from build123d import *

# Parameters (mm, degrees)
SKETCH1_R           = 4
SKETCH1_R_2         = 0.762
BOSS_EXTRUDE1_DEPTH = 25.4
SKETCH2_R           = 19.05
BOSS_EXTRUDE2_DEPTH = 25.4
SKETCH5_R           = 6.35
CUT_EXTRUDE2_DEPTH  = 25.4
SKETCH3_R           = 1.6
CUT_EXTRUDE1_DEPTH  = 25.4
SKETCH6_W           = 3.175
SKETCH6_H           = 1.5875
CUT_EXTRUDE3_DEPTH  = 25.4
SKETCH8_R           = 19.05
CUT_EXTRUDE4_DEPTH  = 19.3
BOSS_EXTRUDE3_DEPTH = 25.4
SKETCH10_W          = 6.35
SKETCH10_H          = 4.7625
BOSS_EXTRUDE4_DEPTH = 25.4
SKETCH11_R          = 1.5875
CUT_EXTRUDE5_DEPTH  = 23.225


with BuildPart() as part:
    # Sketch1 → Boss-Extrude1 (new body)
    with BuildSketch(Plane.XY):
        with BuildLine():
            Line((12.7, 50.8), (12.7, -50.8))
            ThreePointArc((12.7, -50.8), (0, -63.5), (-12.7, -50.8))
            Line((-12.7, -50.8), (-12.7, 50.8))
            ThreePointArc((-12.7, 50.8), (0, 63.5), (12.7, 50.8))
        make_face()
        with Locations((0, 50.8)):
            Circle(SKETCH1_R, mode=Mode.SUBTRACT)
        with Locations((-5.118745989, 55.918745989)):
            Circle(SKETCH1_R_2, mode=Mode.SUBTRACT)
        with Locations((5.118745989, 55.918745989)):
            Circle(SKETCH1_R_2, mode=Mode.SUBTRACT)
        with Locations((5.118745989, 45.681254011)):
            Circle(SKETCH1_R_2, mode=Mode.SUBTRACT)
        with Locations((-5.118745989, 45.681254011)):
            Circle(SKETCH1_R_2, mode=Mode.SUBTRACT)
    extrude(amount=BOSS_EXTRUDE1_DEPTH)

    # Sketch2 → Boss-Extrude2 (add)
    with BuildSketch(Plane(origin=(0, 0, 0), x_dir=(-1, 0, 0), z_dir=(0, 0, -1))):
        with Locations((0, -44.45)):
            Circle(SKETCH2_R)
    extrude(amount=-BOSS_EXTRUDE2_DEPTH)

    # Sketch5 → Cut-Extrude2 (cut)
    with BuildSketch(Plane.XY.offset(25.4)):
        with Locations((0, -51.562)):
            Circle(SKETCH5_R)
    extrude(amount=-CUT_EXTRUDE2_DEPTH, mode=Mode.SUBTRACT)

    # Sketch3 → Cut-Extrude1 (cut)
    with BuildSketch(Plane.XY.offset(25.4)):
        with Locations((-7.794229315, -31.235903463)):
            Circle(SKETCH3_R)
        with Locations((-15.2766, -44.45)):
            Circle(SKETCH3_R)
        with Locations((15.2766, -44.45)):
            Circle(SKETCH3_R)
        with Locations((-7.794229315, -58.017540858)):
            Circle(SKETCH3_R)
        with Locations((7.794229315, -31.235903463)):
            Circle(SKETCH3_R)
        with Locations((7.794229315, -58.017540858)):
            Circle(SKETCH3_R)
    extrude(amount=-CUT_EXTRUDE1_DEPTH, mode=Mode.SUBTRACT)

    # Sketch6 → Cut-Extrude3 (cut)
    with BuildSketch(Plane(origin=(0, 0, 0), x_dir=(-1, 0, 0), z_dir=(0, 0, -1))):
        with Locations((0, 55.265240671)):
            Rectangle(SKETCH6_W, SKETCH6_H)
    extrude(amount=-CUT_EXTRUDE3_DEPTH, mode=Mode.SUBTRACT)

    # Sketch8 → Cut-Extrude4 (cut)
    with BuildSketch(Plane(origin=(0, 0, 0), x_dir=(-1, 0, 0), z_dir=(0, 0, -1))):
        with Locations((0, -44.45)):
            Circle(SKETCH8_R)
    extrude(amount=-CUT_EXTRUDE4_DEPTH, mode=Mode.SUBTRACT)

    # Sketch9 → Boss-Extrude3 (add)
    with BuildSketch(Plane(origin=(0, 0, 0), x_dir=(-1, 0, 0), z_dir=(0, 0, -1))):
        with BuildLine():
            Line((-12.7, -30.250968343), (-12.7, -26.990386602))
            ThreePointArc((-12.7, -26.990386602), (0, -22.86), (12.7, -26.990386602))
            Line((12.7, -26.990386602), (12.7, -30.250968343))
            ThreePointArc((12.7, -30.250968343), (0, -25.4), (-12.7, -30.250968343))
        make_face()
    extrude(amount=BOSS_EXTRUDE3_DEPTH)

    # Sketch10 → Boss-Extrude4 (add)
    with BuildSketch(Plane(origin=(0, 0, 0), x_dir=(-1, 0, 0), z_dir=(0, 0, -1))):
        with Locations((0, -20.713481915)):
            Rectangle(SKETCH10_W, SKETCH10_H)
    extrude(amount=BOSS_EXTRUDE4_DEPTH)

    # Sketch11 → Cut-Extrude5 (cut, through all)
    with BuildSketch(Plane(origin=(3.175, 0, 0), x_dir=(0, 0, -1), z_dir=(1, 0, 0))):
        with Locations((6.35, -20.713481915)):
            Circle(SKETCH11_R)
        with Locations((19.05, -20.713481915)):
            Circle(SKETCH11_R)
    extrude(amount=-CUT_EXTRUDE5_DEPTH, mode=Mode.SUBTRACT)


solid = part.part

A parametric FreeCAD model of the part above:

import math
import FreeCAD as App
import Part
import Sketcher

V = App.Vector
Q = App.Units.Quantity


def add_polygon(sketch, points):
    """Adds a closed chain of lines whose ends are joined by coincident constraints."""
    first, n = sketch.GeometryCount, len(points)
    for a, b in zip(points, points[1:] + points[:1]):
        sketch.addGeometry(Part.LineSegment(App.Vector(*a, 0), App.Vector(*b, 0)), False)
    for i in range(n):
        sketch.addConstraint(Sketcher.Constraint("Coincident", first + i, 2, first + (i + 1) % n, 1))

doc = App.newDocument("Part")
body = doc.addObject("PartDesign::Body", "Body")

# Sketch on XY plane
sketch1 = doc.addObject("Sketcher::SketchObject", "Sketch")
body.addObject(sketch1)
sketch1.AttachmentSupport = (doc.XY_Plane, [""])
sketch1.MapMode = "FlatFace"
sketch1.addGeometry([
    Part.LineSegment(V(12.7, -50.8, 0), V(12.7, 50.8, 0)),  # 0
    Part.ArcOfCircle(Part.Circle(V(0, 50.8, 0), V(0, 0, 1), 12.7), math.radians(0), math.radians(180)),  # 1
    Part.LineSegment(V(-12.7, 50.8, 0), V(-12.7, -50.8, 0)),  # 2
    Part.ArcOfCircle(Part.Circle(V(0, -50.8, 0), V(0, 0, 1), 12.7), math.radians(180), math.radians(360)),  # 3
    Part.Circle(V(5.1, 45.7, 0), V(0, 0, 1), 0.8),  # 4
    Part.Circle(V(-5.1, 45.7, 0), V(0, 0, 1), 0.8),  # 5
    Part.Circle(V(0, 50.8, 0), V(0, 0, 1), 4),  # 6
    Part.Circle(V(5.1, 55.9, 0), V(0, 0, 1), 0.8),  # 7
    Part.Circle(V(-5.1, 55.9, 0), V(0, 0, 1), 0.8),  # 8
], False)
sketch1.addConstraint([
    Sketcher.Constraint("Tangent", 0, 2, 1, 1),
    Sketcher.Constraint("Tangent", 1, 2, 2, 1),
    Sketcher.Constraint("Tangent", 2, 2, 3, 1),
    Sketcher.Constraint("Tangent", 3, 2, 0, 1),
    Sketcher.Constraint("Vertical", 0),
    Sketcher.Constraint("Vertical", 2),
    Sketcher.Constraint("Coincident", 6, 3, 1, 3),
    Sketcher.Constraint("Equal", 4, 5),
    Sketcher.Constraint("Equal", 5, 7),
    Sketcher.Constraint("Equal", 7, 8),
    Sketcher.Constraint("Symmetric", 1, 3, 3, 3, -1, 1),
    Sketcher.Constraint("Symmetric", 4, 3, 5, 3, -2),
    Sketcher.Constraint("Symmetric", 7, 3, 8, 3, -2),
    Sketcher.Constraint("Vertical", 4, 3, 7, 3),
    Sketcher.Constraint("Radius", 1, Q("0.5 in")),
    Sketcher.Constraint("Diameter", 4, Q("0.06 in")),
    Sketcher.Constraint("DistanceY", 0, 1, 0, 2, Q("4 in")),
    Sketcher.Constraint("Diameter", 6, 8.0),
    Sketcher.Constraint("DistanceX", 5, 3, 4, 3, 10.237492),
    Sketcher.Constraint("DistanceY", 4, 3, 7, 3, 10.237492),
    Sketcher.Constraint("DistanceY", -1, 1, 4, 3, 45.681254),
])
pad1 = doc.addObject("PartDesign::Pad", "Pad")
body.addObject(pad1)
pad1.Profile = sketch1
pad1.Length = Q("1 in")

# Sketch on XY plane
sketch2 = doc.addObject("Sketcher::SketchObject", "Sketch001")
body.addObject(sketch2)
sketch2.AttachmentSupport = (doc.XY_Plane, [""])
sketch2.MapMode = "FlatFace"
sketch2.addGeometry(Part.Circle(V(0, -44, 0), V(0, 0, 1), 19), False)
sketch2.addConstraint([
    Sketcher.Constraint("PointOnObject", 0, 3, -2),
    Sketcher.Constraint("Diameter", 0, Q("1.5 in")),
    Sketcher.Constraint("DistanceY", 0, 3, -1, 1, Q("1.75 in")),
])
pad2 = doc.addObject("PartDesign::Pad", "Pad001")
body.addObject(pad2)
pad2.Profile = sketch2
pad2.Length = Q("1 in")

# Sketch on XY plane
sketch3 = doc.addObject("Sketcher::SketchObject", "Sketch002")
body.addObject(sketch3)
sketch3.AttachmentSupport = (doc.XY_Plane, [""])
sketch3.MapMode = "FlatFace"
sketch3.AttachmentOffset = App.Placement(V(0, 0, 1 * 25.4), App.Rotation())
sketch3.addGeometry(Part.Circle(V(0, -52, 0), V(0, 0, 1), 6), False)
sketch3.addConstraint([
    Sketcher.Constraint("PointOnObject", 0, 3, -2),
    Sketcher.Constraint("Diameter", 0, Q("0.5 in")),
    Sketcher.Constraint("DistanceY", 0, 3, -1, 1, Q("2.03 in")),
])
pocket1 = doc.addObject("PartDesign::Pocket", "Pocket")
body.addObject(pocket1)
pocket1.Profile = sketch3
pocket1.Length = Q("1 in")

# Sketch on XY plane
sketch4 = doc.addObject("Sketcher::SketchObject", "Sketch003")
body.addObject(sketch4)
sketch4.AttachmentSupport = (doc.XY_Plane, [""])
sketch4.MapMode = "FlatFace"
sketch4.AttachmentOffset = App.Placement(V(0, 0, 1 * 25.4), App.Rotation())
sketch4.addGeometry([
    Part.Circle(V(-7.8, -31.2, 0), V(0, 0, 1), 1.6),  # 0
    Part.Circle(V(-15.3, -44.5, 0), V(0, 0, 1), 1.6),  # 1
    Part.Circle(V(15.3, -44.5, 0), V(0, 0, 1), 1.6),  # 2
    Part.Circle(V(-7.8, -58, 0), V(0, 0, 1), 1.6),  # 3
    Part.Circle(V(7.8, -31.2, 0), V(0, 0, 1), 1.6),  # 4
    Part.Circle(V(7.8, -58, 0), V(0, 0, 1), 1.6),  # 5
], False)
sketch4.addConstraint([
    Sketcher.Constraint("Equal", 0, 1),
    Sketcher.Constraint("Equal", 1, 2),
    Sketcher.Constraint("Equal", 2, 3),
    Sketcher.Constraint("Equal", 3, 4),
    Sketcher.Constraint("Equal", 4, 5),
    Sketcher.Constraint("Symmetric", 1, 3, 2, 3, -2),
    Sketcher.Constraint("Symmetric", 0, 3, 4, 3, -2),
    Sketcher.Constraint("Symmetric", 3, 3, 5, 3, -2),
    Sketcher.Constraint("Vertical", 0, 3, 3, 3),
    Sketcher.Constraint("Diameter", 0, 3.2),
    Sketcher.Constraint("DistanceY", 1, 3, -1, 1, Q("1.75 in")),
    Sketcher.Constraint("DistanceX", 1, 3, -1, 1, 15.2766),
    Sketcher.Constraint("DistanceX", 0, 3, -1, 1, 7.794229),
    Sketcher.Constraint("DistanceY", 3, 3, -1, 1, 58.017541),
    Sketcher.Constraint("DistanceY", 0, 3, -1, 1, 31.235903),
])
pocket2 = doc.addObject("PartDesign::Pocket", "Pocket001")
body.addObject(pocket2)
pocket2.Profile = sketch4
pocket2.Length = Q("1 in")

# Sketch on XY plane
sketch5 = doc.addObject("Sketcher::SketchObject", "Sketch004")
body.addObject(sketch5)
sketch5.AttachmentSupport = (doc.XY_Plane, [""])
sketch5.MapMode = "FlatFace"
add_polygon(sketch5, [(1.6, 56.1), (1.6, 54.5), (-1.6, 54.5), (-1.6, 56.1)])  # lines 0-3
sketch5.addConstraint([
    Sketcher.Constraint("Vertical", 0),
    Sketcher.Constraint("Horizontal", 1),
    Sketcher.Constraint("Vertical", 2),
    Sketcher.Constraint("Horizontal", 3),
    Sketcher.Constraint("DistanceX", 1, 2, 1, 1, Q("0.125 in")),
    Sketcher.Constraint("DistanceY", 0, 2, 0, 1, Q("0.0625 in")),
    Sketcher.Constraint("DistanceX", -1, 1, 0, 2, Q("0.0625 in")),
    Sketcher.Constraint("DistanceY", -1, 1, 0, 2, 54.471491),
])
pocket3 = doc.addObject("PartDesign::Pocket", "Pocket002")
body.addObject(pocket3)
pocket3.Profile = sketch5
pocket3.Length = Q("1 in")
pocket3.Reversed = True

# Sketch on XY plane
sketch6 = doc.addObject("Sketcher::SketchObject", "Sketch005")
body.addObject(sketch6)
sketch6.AttachmentSupport = (doc.XY_Plane, [""])
sketch6.MapMode = "FlatFace"
sketch6.addGeometry(Part.Circle(V(0, -44, 0), V(0, 0, 1), 19), False)
sketch6.addConstraint([
    Sketcher.Constraint("PointOnObject", 0, 3, -2),
    Sketcher.Constraint("Diameter", 0, Q("1.5 in")),
    Sketcher.Constraint("DistanceY", 0, 3, -1, 1, Q("1.75 in")),
])
pocket4 = doc.addObject("PartDesign::Pocket", "Pocket003")
body.addObject(pocket4)
pocket4.Profile = sketch6
pocket4.Length = 19.3
pocket4.Reversed = True

# Sketch on XY plane
sketch7 = doc.addObject("Sketcher::SketchObject", "Sketch006")
body.addObject(sketch7)
sketch7.AttachmentSupport = (doc.XY_Plane, [""])
sketch7.MapMode = "FlatFace"
sketch7.addGeometry([
    Part.LineSegment(V(12.7, -27, 0), V(12.7, -30.3, 0)),
    Part.ArcOfCircle(Part.Circle(V(0, -44.5, 0), V(0, 0, 1), 19.1), math.radians(48), math.radians(132)),
    Part.LineSegment(V(-12.7, -30.3, 0), V(-12.7, -27, 0)),
    Part.ArcOfCircle(Part.Circle(V(0, -44.5, 0), V(0, 0, 1), 21.6), math.radians(54), math.radians(126)),
], False)
sketch7.addConstraint([
    Sketcher.Constraint("Coincident", 0, 2, 1, 1),
    Sketcher.Constraint("Coincident", 1, 2, 2, 1),
    Sketcher.Constraint("Coincident", 2, 2, 3, 2),
    Sketcher.Constraint("Coincident", 3, 1, 0, 1),
    Sketcher.Constraint("Vertical", 0),
    Sketcher.Constraint("Vertical", 2),
    Sketcher.Constraint("Coincident", 3, 3, 1, 3),
    Sketcher.Constraint("Symmetric", 0, 2, 1, 2, -2),
    Sketcher.Constraint("Radius", 1, Q("0.75 in")),
    Sketcher.Constraint("Radius", 3, Q("0.85 in")),
    Sketcher.Constraint("DistanceX", 1, 2, 0, 2, Q("1 in")),
    Sketcher.Constraint("DistanceY", 1, 3, -1, 1, Q("1.75 in")),
])
pad3 = doc.addObject("PartDesign::Pad", "Pad002")
body.addObject(pad3)
pad3.Profile = sketch7
pad3.Length = Q("1 in")
pad3.Reversed = True

# Sketch on XY plane
sketch8 = doc.addObject("Sketcher::SketchObject", "Sketch007")
body.addObject(sketch8)
sketch8.AttachmentSupport = (doc.XY_Plane, [""])
sketch8.MapMode = "FlatFace"
add_polygon(sketch8, [(3.2, -18.3), (3.2, -23.1), (-3.2, -23.1), (-3.2, -18.3)])  # lines 0-3
sketch8.addConstraint([
    Sketcher.Constraint("Vertical", 0),
    Sketcher.Constraint("Horizontal", 1),
    Sketcher.Constraint("Vertical", 2),
    Sketcher.Constraint("Horizontal", 3),
    Sketcher.Constraint("DistanceX", 1, 2, 1, 1, Q("0.25 in")),
    Sketcher.Constraint("DistanceY", 0, 2, 0, 1, Q("0.1875 in")),
    Sketcher.Constraint("DistanceX", -1, 1, 0, 2, Q("0.125 in")),
    Sketcher.Constraint("DistanceY", 0, 2, -1, 1, 23.094732),
])
pad4 = doc.addObject("PartDesign::Pad", "Pad003")
body.addObject(pad4)
pad4.Profile = sketch8
pad4.Length = Q("1 in")
pad4.Reversed = True

# Sketch on YZ plane
sketch9 = doc.addObject("Sketcher::SketchObject", "Sketch008")
body.addObject(sketch9)
sketch9.AttachmentSupport = (doc.YZ_Plane, [""])
sketch9.MapMode = "FlatFace"
sketch9.AttachmentOffset = App.Placement(V(0, 0, 0.125 * 25.4), App.Rotation())
sketch9.addGeometry([
    Part.Circle(V(-20.7, -6.3, 0), V(0, 0, 1), 1.6),
    Part.Circle(V(-20.7, -19.1, 0), V(0, 0, 1), 1.6),
], False)
sketch9.addConstraint([
    Sketcher.Constraint("Equal", 0, 1),
    Sketcher.Constraint("Vertical", 0, 3, 1, 3),
    Sketcher.Constraint("Diameter", 0, Q("0.125 in")),
    Sketcher.Constraint("DistanceY", 1, 3, 0, 3, Q("0.5 in")),
    Sketcher.Constraint("DistanceY", 0, 3, -1, 1, Q("0.25 in")),
    Sketcher.Constraint("DistanceX", 0, 3, -1, 1, 20.713482),
])
pocket5 = doc.addObject("PartDesign::Pocket", "Pocket004")
body.addObject(pocket5)
pocket5.Profile = sketch9
pocket5.Type = "ThroughAll"

doc.recompute()
